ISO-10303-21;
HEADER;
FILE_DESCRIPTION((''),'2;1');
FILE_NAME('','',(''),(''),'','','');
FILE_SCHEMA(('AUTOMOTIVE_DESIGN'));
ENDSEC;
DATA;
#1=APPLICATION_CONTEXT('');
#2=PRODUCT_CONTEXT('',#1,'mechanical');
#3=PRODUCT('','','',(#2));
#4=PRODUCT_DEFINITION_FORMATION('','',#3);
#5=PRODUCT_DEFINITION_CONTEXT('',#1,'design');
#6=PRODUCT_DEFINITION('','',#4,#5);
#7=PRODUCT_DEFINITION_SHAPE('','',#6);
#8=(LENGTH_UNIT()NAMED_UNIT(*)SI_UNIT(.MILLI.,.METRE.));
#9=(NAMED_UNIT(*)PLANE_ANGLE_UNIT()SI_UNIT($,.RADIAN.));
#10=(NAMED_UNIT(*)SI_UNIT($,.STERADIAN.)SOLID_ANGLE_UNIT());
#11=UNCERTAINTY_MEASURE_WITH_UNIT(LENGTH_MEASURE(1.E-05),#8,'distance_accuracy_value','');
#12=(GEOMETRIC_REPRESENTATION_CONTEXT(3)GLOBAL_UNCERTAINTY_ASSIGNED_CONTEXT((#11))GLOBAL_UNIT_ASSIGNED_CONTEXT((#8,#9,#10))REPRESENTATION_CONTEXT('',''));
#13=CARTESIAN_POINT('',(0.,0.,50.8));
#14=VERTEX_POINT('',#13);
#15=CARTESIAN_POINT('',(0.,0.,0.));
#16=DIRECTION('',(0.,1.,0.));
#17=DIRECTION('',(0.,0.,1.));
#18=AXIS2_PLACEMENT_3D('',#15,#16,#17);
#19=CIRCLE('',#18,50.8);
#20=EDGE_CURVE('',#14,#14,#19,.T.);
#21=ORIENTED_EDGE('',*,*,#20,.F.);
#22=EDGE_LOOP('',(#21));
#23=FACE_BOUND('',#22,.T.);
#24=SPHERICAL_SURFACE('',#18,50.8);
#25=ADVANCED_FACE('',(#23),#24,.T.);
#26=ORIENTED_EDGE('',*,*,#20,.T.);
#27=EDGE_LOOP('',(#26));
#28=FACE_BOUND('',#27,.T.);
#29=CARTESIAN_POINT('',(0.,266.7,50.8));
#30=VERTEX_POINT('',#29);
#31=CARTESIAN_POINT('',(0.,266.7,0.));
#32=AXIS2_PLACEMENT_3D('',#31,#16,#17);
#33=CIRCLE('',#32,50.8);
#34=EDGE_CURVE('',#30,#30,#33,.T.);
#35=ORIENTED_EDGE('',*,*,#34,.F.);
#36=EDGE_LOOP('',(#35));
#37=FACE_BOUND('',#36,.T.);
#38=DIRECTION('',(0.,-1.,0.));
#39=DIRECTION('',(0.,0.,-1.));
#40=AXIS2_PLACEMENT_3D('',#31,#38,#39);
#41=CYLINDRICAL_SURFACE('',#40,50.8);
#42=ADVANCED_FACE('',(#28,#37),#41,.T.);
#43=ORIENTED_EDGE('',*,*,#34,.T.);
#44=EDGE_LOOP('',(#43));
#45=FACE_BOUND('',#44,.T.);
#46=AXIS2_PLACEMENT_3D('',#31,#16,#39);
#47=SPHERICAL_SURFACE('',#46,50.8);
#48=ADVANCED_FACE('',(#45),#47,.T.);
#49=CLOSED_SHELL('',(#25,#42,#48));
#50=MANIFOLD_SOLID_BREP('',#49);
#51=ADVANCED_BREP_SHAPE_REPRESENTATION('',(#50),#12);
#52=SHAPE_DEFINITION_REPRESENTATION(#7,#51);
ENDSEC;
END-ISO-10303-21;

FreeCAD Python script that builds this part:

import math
import FreeCAD as App
import Part
import Sketcher
Q = App.Units.Quantity

doc = App.newDocument("Part")
params = doc.addObject("Spreadsheet::Sheet", "Params")
for row, (alias, value) in enumerate([
    ("sketch1_diameter", "4 in"),
    ("pad1_length", "10.5 in"),
    ("sketch2_radius", "2 in"),
    ("revolution_angle", "360 deg"),
], start=1):
    params.set(f"A{row}", alias)
    params.set(f"B{row}", "=" + value)
    params.setAlias(f"B{row}", alias)

body = doc.addObject("PartDesign::Body", "Body")

sketch1 = doc.addObject("Sketcher::SketchObject", "Sketch")
body.addObject(sketch1)
sketch1.AttachmentSupport = (doc.XZ_Plane, [""])
sketch1.MapMode = "FlatFace"
sketch1.addGeometry(Part.Circle(App.Vector(0, 0, 0), App.Vector(0, 0, 1), 50.8), False)
sketch1.addConstraint([
    Sketcher.Constraint("Coincident", 0, 3, -1, 1),
    Sketcher.Constraint("Diameter", 0, Q("4 in")),
])
sketch1.setExpression("Constraints[1]", "Params.sketch1_diameter")
pad1 = doc.addObject("PartDesign::Pad", "Pad")
body.addObject(pad1)
pad1.Profile = sketch1
pad1.setExpression("Length", "Params.pad1_length")
pad1.Reversed = True

sketch2 = doc.addObject("Sketcher::SketchObject", "Sketch001")
body.addObject(sketch2)
sketch2.AttachmentSupport = (doc.YZ_Plane, [""])
sketch2.MapMode = "FlatFace"
sketch2.addGeometry([
    Part.LineSegment(App.Vector(0, 0, 0), App.Vector(0, 50.8, 0)),
    Part.ArcOfCircle(Part.Circle(App.Vector(0, 0, 0), App.Vector(0, 0, 1), 50.8), math.radians(90), math.radians(180)),
    Part.LineSegment(App.Vector(-50.8, 0, 0), App.Vector(0, 0, 0)),
    Part.LineSegment(App.Vector(266.7, 0, 0), App.Vector(317.5, 0, 0)),
    Part.ArcOfCircle(Part.Circle(App.Vector(266.7, 0, 0), App.Vector(0, 0, 1), 50.8), math.radians(0), math.radians(90)),
    Part.LineSegment(App.Vector(266.7, 50.8, 0), App.Vector(266.7, 0, 0)),
], False)
sketch2.addConstraint([
    Sketcher.Constraint("Coincident", 0, 2, 1, 1),
    Sketcher.Constraint("Coincident", 1, 2, 2, 1),
    Sketcher.Constraint("Coincident", 2, 2, 0, 1),
    Sketcher.Constraint("Coincident", 3, 2, 4, 1),
    Sketcher.Constraint("Coincident", 4, 2, 5, 1),
    Sketcher.Constraint("Coincident", 5, 2, 3, 1),
    Sketcher.Constraint("Vertical", 0),
    Sketcher.Constraint("Horizontal", 2),
    Sketcher.Constraint("Horizontal", 3),
    Sketcher.Constraint("Vertical", 5),
    Sketcher.Constraint("Coincident", 1, 3, -1, 1),
    Sketcher.Constraint("Coincident", 2, 2, -1, 1),
    Sketcher.Constraint("Coincident", 5, 2, 4, 3),
    Sketcher.Constraint("Equal", 1, 4),
    Sketcher.Constraint("PointOnObject", 4, 3, -1),
    Sketcher.Constraint("Radius", 1, Q("2 in")),
    Sketcher.Constraint("DistanceX", -1, 1, 4, 3, Q("10.5 in")),
])
sketch2.setExpression("Constraints[15]", "Params.sketch2_radius")
revolution = doc.addObject("PartDesign::Revolution", "Revolution")
body.addObject(revolution)
revolution.Profile = sketch2
revolution.ReferenceAxis = (sketch2, ["H_Axis"])
revolution.setExpression("Angle", "Params.revolution_angle")

doc.recompute()
